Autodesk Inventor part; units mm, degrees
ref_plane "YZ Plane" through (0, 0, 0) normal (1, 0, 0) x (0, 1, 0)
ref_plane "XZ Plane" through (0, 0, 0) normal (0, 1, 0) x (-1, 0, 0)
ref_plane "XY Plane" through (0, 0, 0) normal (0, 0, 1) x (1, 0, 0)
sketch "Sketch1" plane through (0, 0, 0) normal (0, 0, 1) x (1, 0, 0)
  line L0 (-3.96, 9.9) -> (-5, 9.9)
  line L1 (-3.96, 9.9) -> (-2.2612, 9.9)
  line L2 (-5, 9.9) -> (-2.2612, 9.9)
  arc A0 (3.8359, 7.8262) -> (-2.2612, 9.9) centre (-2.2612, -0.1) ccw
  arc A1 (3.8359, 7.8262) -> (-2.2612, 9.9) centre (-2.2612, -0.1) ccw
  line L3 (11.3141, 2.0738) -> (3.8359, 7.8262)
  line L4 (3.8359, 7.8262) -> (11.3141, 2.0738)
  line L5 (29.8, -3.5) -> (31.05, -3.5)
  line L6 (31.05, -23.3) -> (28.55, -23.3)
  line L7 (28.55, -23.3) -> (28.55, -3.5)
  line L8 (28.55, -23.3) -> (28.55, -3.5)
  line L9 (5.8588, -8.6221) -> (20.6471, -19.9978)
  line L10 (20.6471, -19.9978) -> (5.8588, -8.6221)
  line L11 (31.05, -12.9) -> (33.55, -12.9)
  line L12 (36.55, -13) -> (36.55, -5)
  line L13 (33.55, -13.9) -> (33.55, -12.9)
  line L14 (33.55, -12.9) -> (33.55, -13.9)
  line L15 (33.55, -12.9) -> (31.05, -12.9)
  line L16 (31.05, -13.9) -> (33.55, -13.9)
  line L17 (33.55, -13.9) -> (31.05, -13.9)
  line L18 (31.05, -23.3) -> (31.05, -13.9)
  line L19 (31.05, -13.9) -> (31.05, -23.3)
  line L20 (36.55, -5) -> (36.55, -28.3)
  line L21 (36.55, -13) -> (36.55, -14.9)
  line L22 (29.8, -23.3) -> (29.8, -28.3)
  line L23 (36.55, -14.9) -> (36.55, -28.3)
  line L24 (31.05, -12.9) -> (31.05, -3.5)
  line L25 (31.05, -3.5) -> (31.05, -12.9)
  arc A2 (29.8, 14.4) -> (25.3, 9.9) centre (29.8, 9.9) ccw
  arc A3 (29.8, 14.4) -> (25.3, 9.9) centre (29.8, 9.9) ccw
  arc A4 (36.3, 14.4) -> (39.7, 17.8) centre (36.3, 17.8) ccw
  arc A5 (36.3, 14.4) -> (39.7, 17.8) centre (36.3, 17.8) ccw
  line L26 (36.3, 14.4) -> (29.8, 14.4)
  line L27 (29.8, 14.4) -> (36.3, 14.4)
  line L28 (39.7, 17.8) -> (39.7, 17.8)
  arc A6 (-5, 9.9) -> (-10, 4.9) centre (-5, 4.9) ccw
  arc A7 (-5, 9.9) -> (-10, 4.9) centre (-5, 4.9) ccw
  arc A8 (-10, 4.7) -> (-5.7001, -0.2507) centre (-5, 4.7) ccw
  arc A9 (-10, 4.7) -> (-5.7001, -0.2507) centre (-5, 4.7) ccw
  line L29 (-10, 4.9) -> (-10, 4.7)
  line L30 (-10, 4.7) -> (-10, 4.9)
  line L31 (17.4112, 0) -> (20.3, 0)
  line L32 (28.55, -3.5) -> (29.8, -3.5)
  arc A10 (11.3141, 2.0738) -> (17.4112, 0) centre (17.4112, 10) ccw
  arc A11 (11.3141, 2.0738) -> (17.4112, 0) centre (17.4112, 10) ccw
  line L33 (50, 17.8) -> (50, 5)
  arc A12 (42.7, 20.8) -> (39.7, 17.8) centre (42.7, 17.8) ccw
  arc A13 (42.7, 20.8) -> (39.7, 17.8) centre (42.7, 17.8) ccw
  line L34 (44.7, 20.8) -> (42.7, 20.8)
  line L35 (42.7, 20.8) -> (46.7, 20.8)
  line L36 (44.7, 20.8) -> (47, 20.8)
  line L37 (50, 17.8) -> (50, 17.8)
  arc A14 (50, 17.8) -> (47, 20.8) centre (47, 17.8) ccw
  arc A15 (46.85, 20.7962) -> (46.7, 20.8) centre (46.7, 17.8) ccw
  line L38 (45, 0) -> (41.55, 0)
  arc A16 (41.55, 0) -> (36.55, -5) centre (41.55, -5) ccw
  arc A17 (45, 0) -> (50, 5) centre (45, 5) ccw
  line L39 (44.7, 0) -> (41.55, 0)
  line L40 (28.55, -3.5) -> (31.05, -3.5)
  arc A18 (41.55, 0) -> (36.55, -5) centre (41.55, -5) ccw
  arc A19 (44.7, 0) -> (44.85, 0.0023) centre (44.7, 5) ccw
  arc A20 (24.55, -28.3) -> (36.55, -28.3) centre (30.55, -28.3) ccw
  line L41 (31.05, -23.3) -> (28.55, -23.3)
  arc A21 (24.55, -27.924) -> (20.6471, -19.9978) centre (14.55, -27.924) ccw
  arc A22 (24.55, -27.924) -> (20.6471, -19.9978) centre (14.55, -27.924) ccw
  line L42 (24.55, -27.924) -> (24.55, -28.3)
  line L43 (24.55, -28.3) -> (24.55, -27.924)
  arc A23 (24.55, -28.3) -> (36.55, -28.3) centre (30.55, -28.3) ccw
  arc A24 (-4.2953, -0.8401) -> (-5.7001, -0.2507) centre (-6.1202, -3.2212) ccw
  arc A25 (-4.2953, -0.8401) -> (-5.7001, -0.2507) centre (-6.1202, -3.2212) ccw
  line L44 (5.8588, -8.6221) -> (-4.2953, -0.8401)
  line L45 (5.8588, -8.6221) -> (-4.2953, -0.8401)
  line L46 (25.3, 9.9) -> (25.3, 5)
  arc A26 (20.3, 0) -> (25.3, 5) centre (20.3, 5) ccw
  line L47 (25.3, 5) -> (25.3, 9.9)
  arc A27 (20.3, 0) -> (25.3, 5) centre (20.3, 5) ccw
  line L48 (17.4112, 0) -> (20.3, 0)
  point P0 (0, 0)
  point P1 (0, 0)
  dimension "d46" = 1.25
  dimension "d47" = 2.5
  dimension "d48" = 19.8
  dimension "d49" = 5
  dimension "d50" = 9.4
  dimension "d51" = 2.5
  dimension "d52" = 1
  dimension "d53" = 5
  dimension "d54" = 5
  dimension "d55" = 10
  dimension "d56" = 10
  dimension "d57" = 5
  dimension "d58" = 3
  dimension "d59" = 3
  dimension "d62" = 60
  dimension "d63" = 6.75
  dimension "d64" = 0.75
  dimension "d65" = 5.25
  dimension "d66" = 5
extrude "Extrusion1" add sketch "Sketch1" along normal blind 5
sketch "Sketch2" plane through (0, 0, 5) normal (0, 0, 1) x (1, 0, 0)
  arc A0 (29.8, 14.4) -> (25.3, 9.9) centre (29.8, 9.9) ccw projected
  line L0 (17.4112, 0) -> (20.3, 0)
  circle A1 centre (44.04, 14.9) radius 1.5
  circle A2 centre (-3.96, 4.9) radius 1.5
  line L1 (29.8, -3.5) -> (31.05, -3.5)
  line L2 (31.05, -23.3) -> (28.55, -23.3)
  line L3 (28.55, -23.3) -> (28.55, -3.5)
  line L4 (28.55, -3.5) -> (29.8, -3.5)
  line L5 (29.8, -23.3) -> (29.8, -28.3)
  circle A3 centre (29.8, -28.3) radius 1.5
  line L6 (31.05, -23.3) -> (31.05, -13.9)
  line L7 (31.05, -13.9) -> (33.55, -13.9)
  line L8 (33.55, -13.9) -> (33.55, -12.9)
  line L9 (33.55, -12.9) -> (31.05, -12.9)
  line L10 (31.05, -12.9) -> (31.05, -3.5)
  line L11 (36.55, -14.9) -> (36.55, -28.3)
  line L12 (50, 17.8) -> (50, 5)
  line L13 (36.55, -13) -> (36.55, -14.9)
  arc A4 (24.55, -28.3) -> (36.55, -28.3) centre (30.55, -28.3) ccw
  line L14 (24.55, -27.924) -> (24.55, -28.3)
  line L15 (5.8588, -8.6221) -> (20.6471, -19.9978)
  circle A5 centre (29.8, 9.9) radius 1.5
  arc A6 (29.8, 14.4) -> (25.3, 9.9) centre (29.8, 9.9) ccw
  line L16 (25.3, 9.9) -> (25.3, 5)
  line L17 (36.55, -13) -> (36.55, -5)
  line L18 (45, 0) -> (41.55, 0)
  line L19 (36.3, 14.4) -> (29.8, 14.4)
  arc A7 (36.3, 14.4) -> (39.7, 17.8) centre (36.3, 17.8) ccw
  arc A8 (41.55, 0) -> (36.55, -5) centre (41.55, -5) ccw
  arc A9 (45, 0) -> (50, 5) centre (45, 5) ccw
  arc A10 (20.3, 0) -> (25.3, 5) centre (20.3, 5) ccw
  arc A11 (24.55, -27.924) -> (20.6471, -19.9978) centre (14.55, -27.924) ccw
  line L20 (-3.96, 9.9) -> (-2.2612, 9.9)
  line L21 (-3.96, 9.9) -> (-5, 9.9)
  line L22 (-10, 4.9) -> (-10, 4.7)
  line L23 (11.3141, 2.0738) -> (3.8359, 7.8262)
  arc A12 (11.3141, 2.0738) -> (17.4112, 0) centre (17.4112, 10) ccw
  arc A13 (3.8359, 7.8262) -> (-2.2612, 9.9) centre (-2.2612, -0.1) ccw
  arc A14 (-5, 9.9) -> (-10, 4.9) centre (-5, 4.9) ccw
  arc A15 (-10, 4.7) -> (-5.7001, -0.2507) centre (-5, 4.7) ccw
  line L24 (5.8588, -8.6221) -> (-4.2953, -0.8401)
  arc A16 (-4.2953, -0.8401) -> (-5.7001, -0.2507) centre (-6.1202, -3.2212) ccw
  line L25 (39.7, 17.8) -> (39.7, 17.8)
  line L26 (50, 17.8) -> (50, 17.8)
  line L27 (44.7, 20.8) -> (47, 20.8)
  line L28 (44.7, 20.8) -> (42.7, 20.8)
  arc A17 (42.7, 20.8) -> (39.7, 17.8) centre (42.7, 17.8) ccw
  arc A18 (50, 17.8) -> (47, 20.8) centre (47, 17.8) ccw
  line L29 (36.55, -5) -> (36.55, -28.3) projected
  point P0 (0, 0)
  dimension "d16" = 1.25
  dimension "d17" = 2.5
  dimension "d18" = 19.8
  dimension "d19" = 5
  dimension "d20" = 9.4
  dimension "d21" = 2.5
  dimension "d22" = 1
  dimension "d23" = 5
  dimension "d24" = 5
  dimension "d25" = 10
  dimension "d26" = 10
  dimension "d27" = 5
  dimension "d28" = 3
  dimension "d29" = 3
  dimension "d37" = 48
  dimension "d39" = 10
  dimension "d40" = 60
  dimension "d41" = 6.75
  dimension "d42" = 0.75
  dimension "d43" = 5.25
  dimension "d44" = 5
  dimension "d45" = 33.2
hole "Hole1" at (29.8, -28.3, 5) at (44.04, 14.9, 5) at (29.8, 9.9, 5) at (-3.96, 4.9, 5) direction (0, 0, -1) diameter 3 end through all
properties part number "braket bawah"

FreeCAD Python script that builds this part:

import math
import FreeCAD as App
import Part
import Sketcher
from FreeCAD import Vector
Q = App.Units.Quantity


def add_polygon(sketch, points):
    """Adds a closed chain of lines whose ends are joined by coincident constraints."""
    first, n = sketch.GeometryCount, len(points)
    for a, b in zip(points, points[1:] + points[:1]):
        sketch.addGeometry(Part.LineSegment(App.Vector(*a, 0), App.Vector(*b, 0)), False)
    for i in range(n):
        sketch.addConstraint(Sketcher.Constraint("Coincident", first + i, 2, first + (i + 1) % n, 1))

doc = App.newDocument("Part")
body = doc.addObject("PartDesign::Body", "Body")

# Sketch on XY plane
sketch1 = doc.addObject("Sketcher::SketchObject", "Sketch")
body.addObject(sketch1)
sketch1.AttachmentSupport = (doc.XY_Plane, [""])
sketch1.MapMode = "FlatFace"
sketch1.addGeometry(Part.LineSegment(Vector(-2.2612, 9.9, 0), Vector(-5, 9.9, 0)), False)  # 0
sketch1.addGeometry(Part.ArcOfCircle(Part.Circle(Vector(-5, 4.9, 0), Vector(0, 0, 1), 5), math.radians(90), math.radians(180)), False)  # 1
sketch1.addGeometry(Part.LineSegment(Vector(-10, 4.9, 0), Vector(-10, 4.7, 0)), False)  # 2
sketch1.addGeometry(Part.ArcOfCircle(Part.Circle(Vector(-5, 4.7, 0), Vector(0, 0, 1), 5), math.radians(180), math.radians(261.950927)), False)  # 3
sketch1.addGeometry(Part.ArcOfCircle(Part.Circle(Vector(-6.120788, -3.222214, 0), Vector(0, 0, 1), 3.001146), math.radians(52.535931), math.radians(81.941978)), False)  # 4
sketch1.addGeometry(Part.LineSegment(Vector(-4.2953, -0.8401, 0), Vector(5.8588, -8.6221, 0)), False)  # 5
sketch1.addGeometry(Part.LineSegment(Vector(5.8588, -8.6221, 0), Vector(20.6471, -19.9978, 0)), False)  # 6
sketch1.addGeometry(Part.ArcOfCircle(Part.Circle(Vector(14.55, -27.924, 0), Vector(0, 0, 1), 10), math.radians(0), math.radians(52.431303)), False)  # 7
sketch1.addGeometry(Part.LineSegment(Vector(24.55, -27.924, 0), Vector(24.55, -28.3, 0)), False)  # 8
sketch1.addGeometry(Part.ArcOfCircle(Part.Circle(Vector(30.55, -28.3, 0), Vector(0, 0, 1), 6), math.radians(180), math.radians(360)), False)  # 9
sketch1.addGeometry(Part.LineSegment(Vector(36.55, -28.3, 0), Vector(36.55, -5, 0)), False)  # 10
sketch1.addGeometry(Part.ArcOfCircle(Part.Circle(Vector(41.55, -5, 0), Vector(0, 0, 1), 5), math.radians(90), math.radians(180)), False)  # 11
sketch1.addGeometry(Part.LineSegment(Vector(41.55, 0, 0), Vector(45, 0, 0)), False)  # 12
sketch1.addGeometry(Part.ArcOfCircle(Part.Circle(Vector(45, 5, 0), Vector(0, 0, 1), 5), math.radians(-90), math.radians(0)), False)  # 13
sketch1.addGeometry(Part.LineSegment(Vector(50, 5, 0), Vector(50, 17.8, 0)), False)  # 14
sketch1.addGeometry(Part.ArcOfCircle(Part.Circle(Vector(47, 17.8, 0), Vector(0, 0, 1), 3), math.radians(0), math.radians(90)), False)  # 15
sketch1.addGeometry(Part.LineSegment(Vector(47, 20.8, 0), Vector(42.7, 20.8, 0)), False)  # 16
sketch1.addGeometry(Part.ArcOfCircle(Part.Circle(Vector(42.7, 17.8, 0), Vector(0, 0, 1), 3), math.radians(90), math.radians(180)), False)  # 17
sketch1.addGeometry(Part.ArcOfCircle(Part.Circle(Vector(36.3, 17.8, 0), Vector(0, 0, 1), 3.4), math.radians(-90), math.radians(0)), False)  # 18
sketch1.addGeometry(Part.LineSegment(Vector(36.3, 14.4, 0), Vector(29.8, 14.4, 0)), False)  # 19
sketch1.addGeometry(Part.ArcOfCircle(Part.Circle(Vector(29.8, 9.9, 0), Vector(0, 0, 1), 4.5), math.radians(90), math.radians(180)), False)  # 20
sketch1.addGeometry(Part.LineSegment(Vector(25.3, 9.9, 0), Vector(25.3, 5, 0)), False)  # 21
sketch1.addGeometry(Part.ArcOfCircle(Part.Circle(Vector(20.3, 5, 0), Vector(0, 0, 1), 5), math.radians(-90), math.radians(0)), False)  # 22
sketch1.addGeometry(Part.LineSegment(Vector(20.3, 0, 0), Vector(17.4112, 0, 0)), False)  # 23
sketch1.addGeometry(Part.ArcOfCircle(Part.Circle(Vector(17.4112, 10, 0), Vector(0, 0, 1), 9.999964), math.radians(-127.568697), math.radians(-90)), False)  # 24
sketch1.addGeometry(Part.LineSegment(Vector(11.3141, 2.0738, 0), Vector(3.8359, 7.8262, 0)), False)  # 25
sketch1.addGeometry(Part.ArcOfCircle(Part.Circle(Vector(-2.2612, -0.1, 0), Vector(0, 0, 1), 9.999964), math.radians(52.431303), math.radians(90)), False)  # 26
add_polygon(sketch1, [(28.55, -3.5), (31.05, -3.5), (31.05, -12.9), (33.55, -12.9), (33.55, -13.9), (31.05, -13.9), (31.05, -23.3), (28.55, -23.3)])  # lines 27-34
sketch1.addConstraint([
    Sketcher.Constraint("Coincident", 0, 2, 1, 1),
    Sketcher.Constraint("Coincident", 1, 2, 2, 1),
    Sketcher.Constraint("Coincident", 2, 2, 3, 1),
    Sketcher.Constraint("Coincident", 3, 2, 4, 2),
    Sketcher.Constraint("Coincident", 4, 1, 5, 1),
    Sketcher.Constraint("Coincident", 5, 2, 6, 1),
    Sketcher.Constraint("Coincident", 6, 2, 7, 2),
    Sketcher.Constraint("Coincident", 7, 1, 8, 1),
    Sketcher.Constraint("Coincident", 8, 2, 9, 1),
    Sketcher.Constraint("Coincident", 9, 2, 10, 1),
    Sketcher.Constraint("Coincident", 10, 2, 11, 2),
    Sketcher.Constraint("Coincident", 11, 1, 12, 1),
    Sketcher.Constraint("Coincident", 12, 2, 13, 1),
    Sketcher.Constraint("Coincident", 13, 2, 14, 1),
    Sketcher.Constraint("Coincident", 14, 2, 15, 1),
    Sketcher.Constraint("Coincident", 15, 2, 16, 1),
    Sketcher.Constraint("Coincident", 16, 2, 17, 1),
    Sketcher.Constraint("Coincident", 17, 2, 18, 2),
    Sketcher.Constraint("Coincident", 18, 1, 19, 1),
    Sketcher.Constraint("Coincident", 19, 2, 20, 1),
    Sketcher.Constraint("Coincident", 20, 2, 21, 1),
    Sketcher.Constraint("Coincident", 21, 2, 22, 2),
    Sketcher.Constraint("Coincident", 22, 1, 23, 1),
    Sketcher.Constraint("Coincident", 23, 2, 24, 2),
    Sketcher.Constraint("Coincident", 24, 1, 25, 1),
    Sketcher.Constraint("Coincident", 25, 2, 26, 1),
    Sketcher.Constraint("Coincident", 26, 2, 0, 1),
    Sketcher.Constraint("Horizontal", 0),
    Sketcher.Constraint("Vertical", 2),
    Sketcher.Constraint("Vertical", 8),
    Sketcher.Constraint("Vertical", 10),
    Sketcher.Constraint("Horizontal", 12),
    Sketcher.Constraint("Vertical", 14),
    Sketcher.Constraint("Horizontal", 16),
    Sketcher.Constraint("Horizontal", 19),
    Sketcher.Constraint("Vertical", 21),
    Sketcher.Constraint("Horizontal", 23),
    Sketcher.Constraint("Horizontal", 27),
    Sketcher.Constraint("Vertical", 28),
    Sketcher.Constraint("Horizontal", 29),
    Sketcher.Constraint("Vertical", 30),
    Sketcher.Constraint("Horizontal", 31),
    Sketcher.Constraint("Vertical", 32),
    Sketcher.Constraint("Horizontal", 33),
    Sketcher.Constraint("Vertical", 34),
    Sketcher.Constraint("PointOnObject", 11, 1, -1),
    Sketcher.Constraint("PointOnObject", 22, 1, -1),
    Sketcher.Constraint("Radius", 1, Q("5 mm")),
    Sketcher.Constraint("Radius", 3, Q("5 mm")),
    Sketcher.Constraint("Radius", 7, Q("10 mm")),
    Sketcher.Constraint("Radius", 11, Q("5 mm")),
    Sketcher.Constraint("Radius", 13, Q("5 mm")),
    Sketcher.Constraint("Radius", 15, Q("3 mm")),
    Sketcher.Constraint("Radius", 17, Q("3 mm")),
    Sketcher.Constraint("Radius", 22, Q("5 mm")),
    Sketcher.Constraint("Radius", 24, Q("10 mm")),
    Sketcher.Constraint("Radius", 26, Q("10 mm")),
    Sketcher.Constraint("DistanceY", 30, 2, 30, 1, Q("1 mm")),
    Sketcher.Constraint("DistanceX", 27, 1, 27, 2, Q("2.5 mm")),
    Sketcher.Constraint("DistanceX", 29, 1, 29, 2, Q("2.5 mm")),
    Sketcher.Constraint("DistanceX", 31, 2, 31, 1, Q("2.5 mm")),
    Sketcher.Constraint("DistanceY", 28, 2, 28, 1, Q("9.4 mm")),
    Sketcher.Constraint("DistanceY", 32, 2, 32, 1, Q("9.4 mm")),
    Sketcher.Constraint("DistanceX", 1, 3, -1, 1, Q("5 mm")),
    Sketcher.Constraint("DistanceX", 0, 2, -1, 1, Q("5 mm")),
    Sketcher.Constraint("DistanceY", 10, 2, -1, 1, Q("5 mm")),
    Sketcher.Constraint("DistanceY", -1, 1, 13, 2, Q("5 mm")),
    Sketcher.Constraint("DistanceY", -1, 1, 21, 2, Q("5 mm")),
    Sketcher.Constraint("Radius", 9, Q("6 mm")),
    Sketcher.Constraint("DistanceY", 1, 2, 0, 2, Q("5 mm")),
    Sketcher.Constraint("DistanceX", 10, 2, 11, 1, Q("5 mm")),
    Sketcher.Constraint("DistanceX", 12, 2, 13, 2, Q("5 mm")),
    Sketcher.Constraint("DistanceX", 15, 2, 14, 2, Q("3 mm")),
    Sketcher.Constraint("DistanceY", 14, 2, 15, 2, Q("3 mm")),
    Sketcher.Constraint("DistanceY", 18, 3, 15, 2, Q("3 mm")),
    Sketcher.Constraint("DistanceX", 17, 2, 16, 2, Q("3 mm")),
    Sketcher.Constraint("DistanceY", 17, 2, 16, 2, Q("3 mm")),
    Sketcher.Constraint("DistanceX", 22, 1, 21, 2, Q("5 mm")),
    Sketcher.Constraint("DistanceX", 29, 2, 10, 2, Q("3 mm")),
    Sketcher.Constraint("DistanceY", 9, 3, 32, 2, Q("5 mm")),
    Sketcher.Constraint("DistanceY", 9, 2, 32, 2, Q("5 mm")),
    Sketcher.Constraint("DistanceY", 8, 2, 32, 2, Q("5 mm")),
    Sketcher.Constraint("Radius", 18, Q("3.4 mm")),
    Sketcher.Constraint("Radius", 20, Q("4.5 mm")),
    Sketcher.Constraint("DistanceY", 21, 2, 19, 2, Q("9.4 mm")),
    Sketcher.Constraint("DistanceX", 18, 3, 11, 3, Q("5.25 mm")),
    Sketcher.Constraint("DistanceX", 20, 3, 10, 2, Q("6.75 mm")),
    Sketcher.Constraint("DistanceX", 16, 2, 16, 1, Q("4.3 mm")),
    Sketcher.Constraint("DistanceX", 19, 2, 19, 1, Q("6.5 mm")),
    Sketcher.Constraint("DistanceY", 2, 2, 2, 1, Q("0.2 mm")),
    Sketcher.Constraint("DistanceY", 10, 1, 10, 2, Q("23.3 mm")),
    Sketcher.Constraint("DistanceY", 21, 2, 21, 1, Q("4.9 mm")),
    Sketcher.Constraint("DistanceX", -1, 1, 13, 3, Q("45 mm")),
    Sketcher.Constraint("DistanceY", 9, 3, 3, 3, Q("33 mm")),
    Sketcher.Constraint("DistanceX", 20, 2, 18, 1, Q("11 mm")),
    Sketcher.Constraint("DistanceY", -1, 1, 1, 3, Q("4.9 mm")),
    Sketcher.Constraint("DistanceX", 3, 2, -1, 1, Q("5.7 mm")),
    Sketcher.Constraint("Radius", 4, Q("3.0011 mm")),
    Sketcher.Constraint("DistanceY", 5, 2, 4, 3, Q("5.4 mm")),
    Sketcher.Constraint("DistanceY", 8, 2, 8, 1, Q("0.376 mm")),
    Sketcher.Constraint("DistanceY", 4, 1, -1, 1, Q("0.84 mm")),
    Sketcher.Constraint("DistanceX", 26, 3, 5, 2, Q("8.12 mm")),
    Sketcher.Constraint("DistanceX", 0, 2, 0, 1, Q("2.7388 mm")),
    Sketcher.Constraint("DistanceX", 23, 2, 23, 1, Q("2.8888 mm")),
    Sketcher.Constraint("DistanceY", 7, 3, -1, 1, Q("27.924 mm")),
    Sketcher.Constraint("DistanceY", 5, 2, -1, 1, Q("8.622 mm")),
    Sketcher.Constraint("DistanceX", -1, 1, 6, 2, Q("20.647 mm")),
    Sketcher.Constraint("DistanceX", -1, 1, 24, 1, Q("11.314 mm")),
    Sketcher.Constraint("DistanceX", -1, 1, 25, 2, Q("3.836 mm")),
    Sketcher.Constraint("DistanceX", 3, 2, 26, 3, Q("3.439 mm")),
    Sketcher.Constraint("DistanceX", 24, 1, 24, 3, Q("6.097 mm")),
])
pad1 = doc.addObject("PartDesign::Pad", "Pad")
body.addObject(pad1)
pad1.Profile = sketch1
pad1.Length = 5

# Sketch on XY plane
sketch2 = doc.addObject("Sketcher::SketchObject", "Sketch001")
body.addObject(sketch2)
sketch2.AttachmentSupport = (doc.XY_Plane, [""])
sketch2.MapMode = "FlatFace"
sketch2.AttachmentOffset = App.Placement(Vector(0, 0, 5), App.Rotation())
sketch2.addGeometry([
    Part.Circle(Vector(29.8, -28.3, 0), Vector(0, 0, 1), 1.5),
    Part.Circle(Vector(44.04, 14.9, 0), Vector(0, 0, 1), 1.5),
    Part.Circle(Vector(29.8, 9.9, 0), Vector(0, 0, 1), 1.5),
    Part.Circle(Vector(-3.96, 4.9, 0), Vector(0, 0, 1), 1.5),
], False)
sketch2.addConstraint([
    Sketcher.Constraint("Equal", 0, 1),
    Sketcher.Constraint("Equal", 1, 2),
    Sketcher.Constraint("Equal", 2, 3),
    Sketcher.Constraint("Vertical", 0, 3, 2, 3),
    Sketcher.Constraint("Diameter", 0, Q("3 mm")),
    Sketcher.Constraint("DistanceY", 2, 3, 1, 3, Q("5 mm")),
    Sketcher.Constraint("DistanceY", 3, 3, 2, 3, Q("5 mm")),
    Sketcher.Constraint("DistanceX", 3, 3, 1, 3, Q("48 mm")),
    Sketcher.Constraint("DistanceX", -1, 1, 0, 3, Q("29.8 mm")),
    Sketcher.Constraint("DistanceY", 0, 3, -1, 1, Q("28.3 mm")),
    Sketcher.Constraint("DistanceY", -1, 1, 1, 3, Q("14.9 mm")),
    Sketcher.Constraint("DistanceX", -1, 1, 1, 3, Q("44.04 mm")),
])
doc.recompute()
hole = doc.addObject("PartDesign::Hole", "Hole")
body.addObject(hole)
hole.Profile = sketch2
hole.ThreadType = "None"
hole.Diameter = 3
hole.DepthType = "ThroughAll"

doc.recompute()
